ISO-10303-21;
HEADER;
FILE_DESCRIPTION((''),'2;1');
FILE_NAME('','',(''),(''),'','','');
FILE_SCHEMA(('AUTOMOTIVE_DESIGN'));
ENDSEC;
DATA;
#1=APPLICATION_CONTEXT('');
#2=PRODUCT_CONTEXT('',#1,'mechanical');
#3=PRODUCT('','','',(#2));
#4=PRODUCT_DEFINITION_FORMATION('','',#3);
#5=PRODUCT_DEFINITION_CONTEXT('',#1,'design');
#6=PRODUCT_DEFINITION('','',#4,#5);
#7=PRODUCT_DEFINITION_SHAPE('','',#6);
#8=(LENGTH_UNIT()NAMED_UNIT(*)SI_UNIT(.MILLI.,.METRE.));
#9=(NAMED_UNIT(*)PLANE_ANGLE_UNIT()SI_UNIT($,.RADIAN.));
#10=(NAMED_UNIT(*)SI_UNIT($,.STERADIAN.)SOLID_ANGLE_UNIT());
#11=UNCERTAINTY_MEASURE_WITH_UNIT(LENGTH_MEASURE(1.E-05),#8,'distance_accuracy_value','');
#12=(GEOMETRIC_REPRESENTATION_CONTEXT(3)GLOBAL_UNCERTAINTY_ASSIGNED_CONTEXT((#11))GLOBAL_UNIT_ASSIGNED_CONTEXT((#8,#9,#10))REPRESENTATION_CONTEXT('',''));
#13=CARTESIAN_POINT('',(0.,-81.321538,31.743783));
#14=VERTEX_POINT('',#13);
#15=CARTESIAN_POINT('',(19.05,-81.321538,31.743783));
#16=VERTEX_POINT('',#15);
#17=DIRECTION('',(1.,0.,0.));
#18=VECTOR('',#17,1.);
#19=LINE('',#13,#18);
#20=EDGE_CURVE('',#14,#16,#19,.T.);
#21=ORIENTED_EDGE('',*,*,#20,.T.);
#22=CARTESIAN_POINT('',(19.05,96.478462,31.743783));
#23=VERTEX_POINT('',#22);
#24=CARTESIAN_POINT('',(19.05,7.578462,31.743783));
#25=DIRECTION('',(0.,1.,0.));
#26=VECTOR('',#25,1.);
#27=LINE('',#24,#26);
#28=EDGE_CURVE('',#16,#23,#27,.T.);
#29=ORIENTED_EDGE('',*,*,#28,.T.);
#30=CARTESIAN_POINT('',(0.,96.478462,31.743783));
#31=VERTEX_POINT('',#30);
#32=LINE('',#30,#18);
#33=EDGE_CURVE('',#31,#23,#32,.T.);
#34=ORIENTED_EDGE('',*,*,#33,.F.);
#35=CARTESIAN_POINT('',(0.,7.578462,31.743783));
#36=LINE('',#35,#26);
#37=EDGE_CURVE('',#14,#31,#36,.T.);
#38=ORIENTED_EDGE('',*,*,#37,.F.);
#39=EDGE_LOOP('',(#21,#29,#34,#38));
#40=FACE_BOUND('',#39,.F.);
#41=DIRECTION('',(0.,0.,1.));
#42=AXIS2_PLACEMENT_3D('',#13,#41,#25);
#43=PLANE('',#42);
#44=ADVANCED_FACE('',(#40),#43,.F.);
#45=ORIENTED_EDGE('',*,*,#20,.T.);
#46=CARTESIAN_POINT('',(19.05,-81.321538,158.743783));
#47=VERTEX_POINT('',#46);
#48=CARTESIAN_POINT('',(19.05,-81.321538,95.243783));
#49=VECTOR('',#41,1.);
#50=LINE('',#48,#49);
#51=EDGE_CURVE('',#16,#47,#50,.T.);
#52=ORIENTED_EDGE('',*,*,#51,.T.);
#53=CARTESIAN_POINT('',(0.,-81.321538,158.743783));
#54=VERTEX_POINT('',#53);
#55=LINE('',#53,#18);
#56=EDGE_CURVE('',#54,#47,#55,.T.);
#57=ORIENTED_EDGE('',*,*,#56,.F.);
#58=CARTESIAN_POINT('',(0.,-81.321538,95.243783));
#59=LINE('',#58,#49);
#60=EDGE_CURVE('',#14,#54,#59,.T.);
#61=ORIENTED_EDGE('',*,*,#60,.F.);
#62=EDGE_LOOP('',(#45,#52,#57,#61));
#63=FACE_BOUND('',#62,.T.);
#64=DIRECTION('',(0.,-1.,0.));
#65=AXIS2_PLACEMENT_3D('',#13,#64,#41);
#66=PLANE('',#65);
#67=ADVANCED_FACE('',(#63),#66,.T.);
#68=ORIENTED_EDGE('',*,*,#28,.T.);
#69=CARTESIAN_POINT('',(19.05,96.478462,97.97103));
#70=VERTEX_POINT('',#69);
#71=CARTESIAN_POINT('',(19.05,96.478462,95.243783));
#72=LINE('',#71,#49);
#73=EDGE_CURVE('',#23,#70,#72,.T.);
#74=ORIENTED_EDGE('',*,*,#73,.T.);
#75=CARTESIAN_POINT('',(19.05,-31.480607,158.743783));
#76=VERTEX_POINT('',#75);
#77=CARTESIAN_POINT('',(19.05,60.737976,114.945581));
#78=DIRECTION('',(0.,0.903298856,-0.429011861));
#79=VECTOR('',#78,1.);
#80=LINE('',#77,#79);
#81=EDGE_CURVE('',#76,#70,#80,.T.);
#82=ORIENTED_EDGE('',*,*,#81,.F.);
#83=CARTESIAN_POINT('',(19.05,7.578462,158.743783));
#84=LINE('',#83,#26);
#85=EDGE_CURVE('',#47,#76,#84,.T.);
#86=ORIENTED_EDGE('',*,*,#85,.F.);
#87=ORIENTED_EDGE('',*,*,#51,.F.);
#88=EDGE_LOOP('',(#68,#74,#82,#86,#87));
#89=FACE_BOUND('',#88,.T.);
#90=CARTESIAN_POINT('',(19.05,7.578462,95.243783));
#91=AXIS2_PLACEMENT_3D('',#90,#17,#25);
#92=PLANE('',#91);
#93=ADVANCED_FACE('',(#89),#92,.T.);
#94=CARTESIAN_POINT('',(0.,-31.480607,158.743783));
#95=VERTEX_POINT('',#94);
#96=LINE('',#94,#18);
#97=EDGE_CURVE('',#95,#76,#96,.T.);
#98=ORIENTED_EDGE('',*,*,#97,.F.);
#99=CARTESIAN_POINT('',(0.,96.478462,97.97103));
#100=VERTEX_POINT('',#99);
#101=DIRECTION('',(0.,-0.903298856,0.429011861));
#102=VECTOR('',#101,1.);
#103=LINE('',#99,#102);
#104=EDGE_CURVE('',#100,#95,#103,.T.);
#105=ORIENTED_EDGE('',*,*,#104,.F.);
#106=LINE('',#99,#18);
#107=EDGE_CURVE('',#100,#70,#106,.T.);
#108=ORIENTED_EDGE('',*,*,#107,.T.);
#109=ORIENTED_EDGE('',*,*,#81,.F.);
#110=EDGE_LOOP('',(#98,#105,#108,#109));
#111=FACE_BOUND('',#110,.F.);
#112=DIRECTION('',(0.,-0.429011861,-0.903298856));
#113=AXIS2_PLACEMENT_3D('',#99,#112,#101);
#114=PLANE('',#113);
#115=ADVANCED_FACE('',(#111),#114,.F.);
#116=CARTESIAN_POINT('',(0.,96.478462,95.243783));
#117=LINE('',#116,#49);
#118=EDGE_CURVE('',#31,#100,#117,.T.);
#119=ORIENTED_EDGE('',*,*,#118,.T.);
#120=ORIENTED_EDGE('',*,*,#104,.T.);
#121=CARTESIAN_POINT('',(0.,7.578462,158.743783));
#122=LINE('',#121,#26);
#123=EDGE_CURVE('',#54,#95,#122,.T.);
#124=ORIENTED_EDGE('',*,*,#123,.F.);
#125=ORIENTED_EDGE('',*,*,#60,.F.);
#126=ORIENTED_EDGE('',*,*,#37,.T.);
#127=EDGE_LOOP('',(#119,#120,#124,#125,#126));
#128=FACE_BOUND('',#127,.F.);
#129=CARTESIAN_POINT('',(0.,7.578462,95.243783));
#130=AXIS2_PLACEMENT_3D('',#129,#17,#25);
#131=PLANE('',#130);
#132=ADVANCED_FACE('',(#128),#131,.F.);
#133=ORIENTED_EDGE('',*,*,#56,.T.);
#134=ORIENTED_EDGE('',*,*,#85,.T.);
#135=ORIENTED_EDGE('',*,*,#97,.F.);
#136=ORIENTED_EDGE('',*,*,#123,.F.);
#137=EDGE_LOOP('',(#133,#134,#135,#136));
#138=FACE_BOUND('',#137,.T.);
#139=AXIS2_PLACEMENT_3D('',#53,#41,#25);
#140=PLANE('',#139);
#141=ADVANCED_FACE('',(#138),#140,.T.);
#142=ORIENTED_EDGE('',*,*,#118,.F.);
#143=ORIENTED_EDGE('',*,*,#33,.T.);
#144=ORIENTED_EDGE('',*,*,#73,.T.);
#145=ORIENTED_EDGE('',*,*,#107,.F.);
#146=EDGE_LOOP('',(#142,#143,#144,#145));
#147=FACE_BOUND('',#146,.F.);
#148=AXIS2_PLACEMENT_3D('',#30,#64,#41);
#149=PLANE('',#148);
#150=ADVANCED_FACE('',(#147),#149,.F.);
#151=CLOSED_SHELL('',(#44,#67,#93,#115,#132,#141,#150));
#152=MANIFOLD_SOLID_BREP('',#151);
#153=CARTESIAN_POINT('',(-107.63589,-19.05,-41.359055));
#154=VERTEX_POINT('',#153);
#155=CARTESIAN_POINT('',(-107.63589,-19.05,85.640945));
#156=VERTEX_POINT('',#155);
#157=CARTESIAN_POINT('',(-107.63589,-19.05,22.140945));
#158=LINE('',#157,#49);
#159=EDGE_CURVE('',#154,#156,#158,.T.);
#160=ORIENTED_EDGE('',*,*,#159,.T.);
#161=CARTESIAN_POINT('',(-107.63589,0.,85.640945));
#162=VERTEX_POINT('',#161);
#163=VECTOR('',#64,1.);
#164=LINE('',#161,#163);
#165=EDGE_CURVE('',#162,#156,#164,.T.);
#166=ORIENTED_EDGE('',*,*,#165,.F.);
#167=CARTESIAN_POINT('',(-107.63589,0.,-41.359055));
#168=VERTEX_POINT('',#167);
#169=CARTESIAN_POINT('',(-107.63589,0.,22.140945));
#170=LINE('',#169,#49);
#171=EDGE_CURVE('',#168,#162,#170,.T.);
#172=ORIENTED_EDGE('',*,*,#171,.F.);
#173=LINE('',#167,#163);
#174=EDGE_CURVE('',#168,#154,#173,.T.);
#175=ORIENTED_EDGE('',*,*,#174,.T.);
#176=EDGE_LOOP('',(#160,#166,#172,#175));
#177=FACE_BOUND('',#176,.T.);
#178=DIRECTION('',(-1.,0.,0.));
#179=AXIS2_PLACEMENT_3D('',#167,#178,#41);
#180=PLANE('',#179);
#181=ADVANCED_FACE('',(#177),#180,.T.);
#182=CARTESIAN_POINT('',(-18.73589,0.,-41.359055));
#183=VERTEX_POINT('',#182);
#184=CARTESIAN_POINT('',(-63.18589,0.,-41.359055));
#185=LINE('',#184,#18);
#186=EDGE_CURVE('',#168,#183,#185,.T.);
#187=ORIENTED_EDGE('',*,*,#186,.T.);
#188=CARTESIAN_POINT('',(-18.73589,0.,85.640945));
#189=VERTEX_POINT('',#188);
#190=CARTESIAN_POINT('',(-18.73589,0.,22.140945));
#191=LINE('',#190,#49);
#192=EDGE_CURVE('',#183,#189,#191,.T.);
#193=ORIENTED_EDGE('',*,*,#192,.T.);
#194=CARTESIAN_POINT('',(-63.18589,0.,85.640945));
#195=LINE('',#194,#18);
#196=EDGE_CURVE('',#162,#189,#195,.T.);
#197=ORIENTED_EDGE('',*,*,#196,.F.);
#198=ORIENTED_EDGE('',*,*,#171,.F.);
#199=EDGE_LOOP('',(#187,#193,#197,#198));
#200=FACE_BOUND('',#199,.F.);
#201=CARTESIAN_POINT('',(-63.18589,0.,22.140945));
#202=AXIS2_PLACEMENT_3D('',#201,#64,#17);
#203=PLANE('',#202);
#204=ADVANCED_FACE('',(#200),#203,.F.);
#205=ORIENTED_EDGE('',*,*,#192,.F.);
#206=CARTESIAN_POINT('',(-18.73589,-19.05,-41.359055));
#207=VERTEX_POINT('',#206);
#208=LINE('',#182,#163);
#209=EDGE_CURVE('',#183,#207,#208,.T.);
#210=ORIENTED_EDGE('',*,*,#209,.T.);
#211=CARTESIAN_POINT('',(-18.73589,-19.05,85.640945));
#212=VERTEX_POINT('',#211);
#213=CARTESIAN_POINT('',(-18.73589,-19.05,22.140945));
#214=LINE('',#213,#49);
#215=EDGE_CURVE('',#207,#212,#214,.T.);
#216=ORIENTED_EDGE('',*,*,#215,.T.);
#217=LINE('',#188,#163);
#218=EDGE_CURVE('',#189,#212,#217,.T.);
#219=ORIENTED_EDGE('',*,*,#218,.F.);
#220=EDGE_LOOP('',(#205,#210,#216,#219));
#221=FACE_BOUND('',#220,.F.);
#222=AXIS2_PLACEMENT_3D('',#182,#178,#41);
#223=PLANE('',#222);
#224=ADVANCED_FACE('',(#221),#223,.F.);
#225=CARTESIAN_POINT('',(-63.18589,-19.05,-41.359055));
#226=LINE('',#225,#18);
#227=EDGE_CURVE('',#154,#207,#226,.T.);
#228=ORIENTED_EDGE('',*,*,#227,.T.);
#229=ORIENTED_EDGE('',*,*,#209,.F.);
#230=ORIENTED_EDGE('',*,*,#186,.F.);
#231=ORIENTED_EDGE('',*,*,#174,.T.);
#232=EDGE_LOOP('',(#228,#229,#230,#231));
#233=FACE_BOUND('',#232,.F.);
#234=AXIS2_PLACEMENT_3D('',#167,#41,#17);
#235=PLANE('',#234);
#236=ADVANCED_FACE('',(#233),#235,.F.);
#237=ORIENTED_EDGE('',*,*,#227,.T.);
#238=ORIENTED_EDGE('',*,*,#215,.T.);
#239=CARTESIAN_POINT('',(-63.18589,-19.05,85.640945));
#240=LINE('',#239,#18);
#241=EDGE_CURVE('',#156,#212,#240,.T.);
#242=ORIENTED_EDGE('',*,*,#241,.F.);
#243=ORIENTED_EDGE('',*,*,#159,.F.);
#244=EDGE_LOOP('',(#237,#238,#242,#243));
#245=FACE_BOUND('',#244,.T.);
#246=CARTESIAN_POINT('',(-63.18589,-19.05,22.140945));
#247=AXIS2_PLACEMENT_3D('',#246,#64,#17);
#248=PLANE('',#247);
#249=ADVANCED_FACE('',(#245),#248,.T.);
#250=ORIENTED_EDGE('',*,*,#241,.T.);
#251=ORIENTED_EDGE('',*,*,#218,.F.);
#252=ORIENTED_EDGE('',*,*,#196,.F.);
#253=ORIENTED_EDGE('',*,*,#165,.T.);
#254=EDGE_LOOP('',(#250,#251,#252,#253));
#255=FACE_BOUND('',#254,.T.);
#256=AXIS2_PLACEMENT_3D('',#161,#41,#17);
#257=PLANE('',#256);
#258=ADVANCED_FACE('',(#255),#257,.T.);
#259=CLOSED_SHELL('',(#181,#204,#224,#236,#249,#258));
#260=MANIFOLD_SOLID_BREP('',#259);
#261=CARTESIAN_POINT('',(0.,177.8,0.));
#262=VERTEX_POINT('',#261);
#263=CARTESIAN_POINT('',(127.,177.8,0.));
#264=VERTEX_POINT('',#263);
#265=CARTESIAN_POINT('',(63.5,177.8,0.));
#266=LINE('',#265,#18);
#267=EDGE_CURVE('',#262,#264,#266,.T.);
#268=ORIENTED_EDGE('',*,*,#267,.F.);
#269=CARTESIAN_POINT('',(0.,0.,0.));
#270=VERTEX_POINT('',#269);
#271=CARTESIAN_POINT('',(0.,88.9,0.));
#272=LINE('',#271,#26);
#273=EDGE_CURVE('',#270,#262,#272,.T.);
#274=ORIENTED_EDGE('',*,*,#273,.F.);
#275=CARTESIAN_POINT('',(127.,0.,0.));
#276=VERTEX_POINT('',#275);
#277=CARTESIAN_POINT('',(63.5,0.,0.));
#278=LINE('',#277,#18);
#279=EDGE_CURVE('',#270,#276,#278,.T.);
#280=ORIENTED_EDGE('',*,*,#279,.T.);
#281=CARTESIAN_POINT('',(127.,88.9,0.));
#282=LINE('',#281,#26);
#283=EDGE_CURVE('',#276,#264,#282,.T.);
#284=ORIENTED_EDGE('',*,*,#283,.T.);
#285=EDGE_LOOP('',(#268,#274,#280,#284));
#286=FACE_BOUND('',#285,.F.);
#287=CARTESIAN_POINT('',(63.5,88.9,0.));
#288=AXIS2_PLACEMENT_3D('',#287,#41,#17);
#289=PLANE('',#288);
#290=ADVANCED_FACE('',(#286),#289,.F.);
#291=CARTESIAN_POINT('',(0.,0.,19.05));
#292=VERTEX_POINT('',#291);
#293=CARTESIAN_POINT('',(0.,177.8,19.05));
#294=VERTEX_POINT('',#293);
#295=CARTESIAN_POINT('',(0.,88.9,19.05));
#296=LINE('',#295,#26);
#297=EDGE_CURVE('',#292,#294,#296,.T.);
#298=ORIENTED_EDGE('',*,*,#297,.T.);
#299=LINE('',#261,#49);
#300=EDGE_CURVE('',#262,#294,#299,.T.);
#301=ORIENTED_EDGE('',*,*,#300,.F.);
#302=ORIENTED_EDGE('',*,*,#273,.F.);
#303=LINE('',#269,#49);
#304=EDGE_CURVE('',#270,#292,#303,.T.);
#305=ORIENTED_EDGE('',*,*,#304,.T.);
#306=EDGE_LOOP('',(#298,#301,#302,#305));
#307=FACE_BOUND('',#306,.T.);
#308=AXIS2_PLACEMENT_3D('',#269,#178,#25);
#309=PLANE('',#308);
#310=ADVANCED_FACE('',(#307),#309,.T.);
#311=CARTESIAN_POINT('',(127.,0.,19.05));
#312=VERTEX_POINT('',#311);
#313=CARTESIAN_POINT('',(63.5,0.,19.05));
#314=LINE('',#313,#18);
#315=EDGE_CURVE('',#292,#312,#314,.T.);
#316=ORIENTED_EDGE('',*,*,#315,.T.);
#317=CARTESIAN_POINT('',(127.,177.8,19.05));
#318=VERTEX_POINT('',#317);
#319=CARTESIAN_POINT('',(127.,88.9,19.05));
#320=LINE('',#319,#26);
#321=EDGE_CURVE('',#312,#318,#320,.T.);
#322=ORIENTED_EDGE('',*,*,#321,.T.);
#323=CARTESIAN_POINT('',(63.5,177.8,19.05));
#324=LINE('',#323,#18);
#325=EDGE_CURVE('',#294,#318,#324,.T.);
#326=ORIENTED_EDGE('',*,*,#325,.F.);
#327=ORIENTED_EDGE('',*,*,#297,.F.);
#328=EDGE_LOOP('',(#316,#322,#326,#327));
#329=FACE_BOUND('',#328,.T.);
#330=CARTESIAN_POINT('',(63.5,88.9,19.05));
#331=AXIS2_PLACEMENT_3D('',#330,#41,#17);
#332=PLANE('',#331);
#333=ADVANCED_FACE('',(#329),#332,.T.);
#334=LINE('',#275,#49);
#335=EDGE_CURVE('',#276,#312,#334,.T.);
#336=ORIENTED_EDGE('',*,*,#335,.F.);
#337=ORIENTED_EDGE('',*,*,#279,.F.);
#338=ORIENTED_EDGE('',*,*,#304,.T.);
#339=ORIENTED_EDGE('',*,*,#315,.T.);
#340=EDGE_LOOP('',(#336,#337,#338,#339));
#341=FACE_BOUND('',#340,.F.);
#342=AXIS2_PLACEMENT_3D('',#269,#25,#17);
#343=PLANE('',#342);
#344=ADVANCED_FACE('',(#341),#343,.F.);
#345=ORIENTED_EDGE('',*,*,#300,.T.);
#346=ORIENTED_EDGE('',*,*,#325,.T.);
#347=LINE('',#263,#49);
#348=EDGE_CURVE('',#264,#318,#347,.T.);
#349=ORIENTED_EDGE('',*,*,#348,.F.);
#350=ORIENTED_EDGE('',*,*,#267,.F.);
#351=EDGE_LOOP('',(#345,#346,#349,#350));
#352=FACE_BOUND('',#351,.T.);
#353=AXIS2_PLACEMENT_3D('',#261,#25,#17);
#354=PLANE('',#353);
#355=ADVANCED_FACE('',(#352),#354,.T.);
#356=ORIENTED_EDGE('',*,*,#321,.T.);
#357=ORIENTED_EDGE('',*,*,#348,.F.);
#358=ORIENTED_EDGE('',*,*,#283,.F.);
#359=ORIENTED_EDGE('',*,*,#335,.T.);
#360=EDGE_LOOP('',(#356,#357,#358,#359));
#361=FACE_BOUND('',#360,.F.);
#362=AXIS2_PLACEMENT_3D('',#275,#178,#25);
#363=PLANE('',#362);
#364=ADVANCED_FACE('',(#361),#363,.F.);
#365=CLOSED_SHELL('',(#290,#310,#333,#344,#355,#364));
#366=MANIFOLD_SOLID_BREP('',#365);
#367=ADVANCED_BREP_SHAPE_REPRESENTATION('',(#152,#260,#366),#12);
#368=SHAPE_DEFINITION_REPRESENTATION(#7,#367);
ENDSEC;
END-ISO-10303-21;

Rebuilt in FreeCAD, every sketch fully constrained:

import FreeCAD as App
import Part
import Sketcher
Q = App.Units.Quantity


def add_polygon(sketch, points):
    """Adds a closed chain of lines whose ends are joined by coincident constraints."""
    first, n = sketch.GeometryCount, len(points)
    for a, b in zip(points, points[1:] + points[:1]):
        sketch.addGeometry(Part.LineSegment(App.Vector(*a, 0), App.Vector(*b, 0)), False)
    for i in range(n):
        sketch.addConstraint(Sketcher.Constraint("Coincident", first + i, 2, first + (i + 1) % n, 1))

doc = App.newDocument("Part")
body = doc.addObject("PartDesign::Body", "Body")

sketch1 = body.newObject("Sketcher::SketchObject", "Sketch")
sketch1.AttachmentSupport = (doc.getObject("XY_Plane"), [""])
sketch1.MapMode = "FlatFace"
add_polygon(sketch1, [(0, 178), (0, 0), (127, 0), (127, 178)])
sketch1.addConstraint([
    Sketcher.Constraint("Vertical", 0),
    Sketcher.Constraint("Horizontal", 1),
    Sketcher.Constraint("Vertical", 2),
    Sketcher.Constraint("Horizontal", 3),
    Sketcher.Constraint("Coincident", 0, 2, -1, 1),
    Sketcher.Constraint("DistanceX", 1, 1, 1, 2, Q("5 in")),
    Sketcher.Constraint("DistanceY", 0, 2, 0, 1, Q("7 in")),
])
pad1 = body.newObject("PartDesign::Pad", "Pad")
pad1.Profile = sketch1
pad1.Length = Q("0.75 in")
body2 = doc.addObject("PartDesign::Body", "Body001")

sketch2 = body2.newObject("Sketcher::SketchObject", "Sketch001")
sketch2.AttachmentSupport = (doc.getObject("YZ_Plane001"), [""])
sketch2.MapMode = "FlatFace"
add_polygon(sketch2, [(-81, 159), (-81, 32), (96, 32), (96, 159)])
sketch2.addConstraint([
    Sketcher.Constraint("Vertical", 0),
    Sketcher.Constraint("Horizontal", 1),
    Sketcher.Constraint("Vertical", 2),
    Sketcher.Constraint("Horizontal", 3),
    Sketcher.Constraint("DistanceX", 1, 1, 1, 2, Q("7 in")),
    Sketcher.Constraint("DistanceY", 0, 2, 0, 1, Q("5 in")),
    Sketcher.Constraint("DistanceX", 0, 2, -1, 1, 81.321538),
    Sketcher.Constraint("DistanceY", -1, 1, 0, 2, 31.743783),
])
pad2 = body2.newObject("PartDesign::Pad", "Pad001")
pad2.Profile = sketch2
pad2.Length = Q("0.75 in")

sketch3 = body2.newObject("Sketcher::SketchObject", "Sketch002")
sketch3.AttachmentSupport = (doc.getObject("YZ_Plane001"), [""])
sketch3.MapMode = "FlatFace"
add_polygon(sketch3, [(96, 98), (-31, 159), (96, 159)])
sketch3.addConstraint([
    Sketcher.Constraint("Horizontal", 1),
    Sketcher.Constraint("Vertical", 2),
    Sketcher.Constraint("DistanceX", 1, 1, 1, 2, 127.959069),
    Sketcher.Constraint("DistanceY", 2, 2, 2, 1, 60.772753),
    Sketcher.Constraint("DistanceX", -1, 1, 1, 2, 96.478462),
    Sketcher.Constraint("DistanceY", -1, 1, 2, 2, 97.97103),
])
pocket1 = body2.newObject("PartDesign::Pocket", "Pocket")
pocket1.Profile = sketch3
pocket1.Type = "ThroughAll"
pocket1.Reversed = True
body3 = doc.addObject("PartDesign::Body", "Body002")

sketch4 = body3.newObject("Sketcher::SketchObject", "Sketch003")
sketch4.AttachmentSupport = (doc.getObject("XZ_Plane002"), [""])
sketch4.MapMode = "FlatFace"
add_polygon(sketch4, [(-108, 86), (-108, -41), (-19, -41), (-19, 86)])
sketch4.addConstraint([
    Sketcher.Constraint("Vertical", 0),
    Sketcher.Constraint("Horizontal", 1),
    Sketcher.Constraint("Vertical", 2),
    Sketcher.Constraint("Horizontal", 3),
    Sketcher.Constraint("DistanceY", 0, 2, 0, 1, Q("5 in")),
    Sketcher.Constraint("DistanceX", 1, 1, 1, 2, Q("3.5 in")),
    Sketcher.Constraint("DistanceX", 0, 2, -1, 1, 107.63589),
    Sketcher.Constraint("DistanceY", 0, 2, -1, 1, 41.359055),
])
pad3 = body3.newObject("PartDesign::Pad", "Pad002")
pad3.Profile = sketch4
pad3.Length = Q("0.75 in")

doc.recompute()
